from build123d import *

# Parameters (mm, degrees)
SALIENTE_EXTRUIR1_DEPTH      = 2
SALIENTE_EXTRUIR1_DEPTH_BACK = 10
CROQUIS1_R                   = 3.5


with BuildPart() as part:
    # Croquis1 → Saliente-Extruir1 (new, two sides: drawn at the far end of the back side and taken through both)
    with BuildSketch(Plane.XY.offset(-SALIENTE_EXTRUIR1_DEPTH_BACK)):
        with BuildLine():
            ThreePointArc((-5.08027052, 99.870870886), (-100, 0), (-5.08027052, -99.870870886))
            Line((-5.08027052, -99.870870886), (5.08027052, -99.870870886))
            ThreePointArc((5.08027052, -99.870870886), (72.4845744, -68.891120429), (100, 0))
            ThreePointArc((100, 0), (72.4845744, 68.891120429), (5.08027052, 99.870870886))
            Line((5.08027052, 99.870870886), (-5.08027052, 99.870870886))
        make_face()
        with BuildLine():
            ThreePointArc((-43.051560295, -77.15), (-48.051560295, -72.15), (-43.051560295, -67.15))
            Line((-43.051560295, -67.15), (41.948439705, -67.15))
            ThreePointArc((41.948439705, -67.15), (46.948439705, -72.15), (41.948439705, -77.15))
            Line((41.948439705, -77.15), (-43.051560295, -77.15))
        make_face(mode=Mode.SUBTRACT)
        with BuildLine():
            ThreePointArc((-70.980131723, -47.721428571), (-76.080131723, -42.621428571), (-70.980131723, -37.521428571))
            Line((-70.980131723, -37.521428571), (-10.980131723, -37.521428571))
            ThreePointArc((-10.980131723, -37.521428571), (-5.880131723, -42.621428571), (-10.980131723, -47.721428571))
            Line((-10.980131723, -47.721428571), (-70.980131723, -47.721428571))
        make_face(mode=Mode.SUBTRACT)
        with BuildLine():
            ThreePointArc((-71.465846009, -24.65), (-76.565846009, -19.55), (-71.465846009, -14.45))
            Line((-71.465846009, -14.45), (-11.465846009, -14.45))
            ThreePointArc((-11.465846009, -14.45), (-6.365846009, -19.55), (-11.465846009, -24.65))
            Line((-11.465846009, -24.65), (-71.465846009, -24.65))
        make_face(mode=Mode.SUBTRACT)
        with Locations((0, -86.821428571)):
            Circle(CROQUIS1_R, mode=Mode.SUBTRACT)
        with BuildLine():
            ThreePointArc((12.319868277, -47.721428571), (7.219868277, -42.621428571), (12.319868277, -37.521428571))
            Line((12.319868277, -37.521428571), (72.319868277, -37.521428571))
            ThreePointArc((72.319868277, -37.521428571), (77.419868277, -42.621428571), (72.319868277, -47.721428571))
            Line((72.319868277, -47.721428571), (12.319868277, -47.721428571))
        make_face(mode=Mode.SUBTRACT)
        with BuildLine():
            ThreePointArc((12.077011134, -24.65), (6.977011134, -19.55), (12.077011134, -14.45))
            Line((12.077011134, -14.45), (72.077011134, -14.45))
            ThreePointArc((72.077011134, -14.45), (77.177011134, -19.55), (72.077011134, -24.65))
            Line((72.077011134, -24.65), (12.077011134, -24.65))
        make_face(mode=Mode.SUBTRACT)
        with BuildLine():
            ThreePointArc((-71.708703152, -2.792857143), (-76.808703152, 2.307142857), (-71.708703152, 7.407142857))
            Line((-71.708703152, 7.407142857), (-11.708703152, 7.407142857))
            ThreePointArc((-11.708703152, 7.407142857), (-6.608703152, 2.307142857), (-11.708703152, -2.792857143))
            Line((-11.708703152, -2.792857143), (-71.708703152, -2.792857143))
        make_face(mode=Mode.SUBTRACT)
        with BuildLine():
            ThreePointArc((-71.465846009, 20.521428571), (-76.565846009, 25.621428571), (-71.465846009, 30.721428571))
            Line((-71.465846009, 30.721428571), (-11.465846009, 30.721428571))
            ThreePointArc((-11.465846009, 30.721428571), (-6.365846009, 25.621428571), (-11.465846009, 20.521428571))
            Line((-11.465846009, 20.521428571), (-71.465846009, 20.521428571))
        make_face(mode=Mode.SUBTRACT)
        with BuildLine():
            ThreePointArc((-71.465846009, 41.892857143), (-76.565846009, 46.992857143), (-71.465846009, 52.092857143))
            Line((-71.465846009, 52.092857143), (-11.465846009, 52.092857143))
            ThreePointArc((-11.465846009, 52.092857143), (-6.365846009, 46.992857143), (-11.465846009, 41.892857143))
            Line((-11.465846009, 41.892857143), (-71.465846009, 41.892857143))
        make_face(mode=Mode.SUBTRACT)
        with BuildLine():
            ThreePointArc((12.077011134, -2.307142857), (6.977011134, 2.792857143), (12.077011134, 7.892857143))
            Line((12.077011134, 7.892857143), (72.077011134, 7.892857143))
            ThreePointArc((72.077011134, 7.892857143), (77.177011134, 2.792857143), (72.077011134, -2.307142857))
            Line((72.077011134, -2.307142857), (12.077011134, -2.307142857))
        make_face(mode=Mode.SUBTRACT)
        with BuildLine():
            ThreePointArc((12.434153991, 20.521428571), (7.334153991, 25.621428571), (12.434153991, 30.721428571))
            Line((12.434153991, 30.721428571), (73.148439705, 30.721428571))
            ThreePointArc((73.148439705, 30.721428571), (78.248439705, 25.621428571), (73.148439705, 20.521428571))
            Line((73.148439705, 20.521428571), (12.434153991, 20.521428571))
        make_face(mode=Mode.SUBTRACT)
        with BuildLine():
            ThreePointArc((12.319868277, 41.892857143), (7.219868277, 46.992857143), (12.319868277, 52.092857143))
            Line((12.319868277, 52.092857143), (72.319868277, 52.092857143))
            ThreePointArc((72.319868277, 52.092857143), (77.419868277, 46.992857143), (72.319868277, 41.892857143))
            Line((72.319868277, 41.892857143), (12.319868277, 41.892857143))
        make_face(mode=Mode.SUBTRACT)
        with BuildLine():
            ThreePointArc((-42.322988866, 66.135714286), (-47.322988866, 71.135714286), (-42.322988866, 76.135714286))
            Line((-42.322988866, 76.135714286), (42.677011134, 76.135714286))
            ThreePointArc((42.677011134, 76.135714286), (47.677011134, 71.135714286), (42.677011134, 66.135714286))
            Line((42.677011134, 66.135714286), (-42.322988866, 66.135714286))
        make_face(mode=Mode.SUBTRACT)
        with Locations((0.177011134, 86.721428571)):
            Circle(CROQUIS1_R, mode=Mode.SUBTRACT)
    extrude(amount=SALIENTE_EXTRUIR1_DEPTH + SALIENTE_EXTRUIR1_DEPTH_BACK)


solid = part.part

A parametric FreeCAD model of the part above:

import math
import FreeCAD as App
import Part
import Sketcher

V = App.Vector
Q = App.Units.Quantity

doc = App.newDocument("Part")
body = doc.addObject("PartDesign::Body", "Body")

# Sketch on XY plane
sketch1 = body.newObject("Sketcher::SketchObject", "Sketch")
sketch1.AttachmentSupport = (doc.getObject("XY_Plane"), [""])
sketch1.MapMode = "FlatFace"
sketch1.addGeometry(Part.ArcOfCircle(Part.Circle(V(0, 0, 0), V(0, 0, 1), 100), math.radians(93), math.radians(267)), False)
sketch1.addGeometry(Part.LineSegment(V(-5.1, -99.9, 0), V(5.1, -99.9, 0)), False)
sketch1.addGeometry(Part.ArcOfCircle(Part.Circle(V(0, 0, 0), V(0, 0, 1), 100), math.radians(-87), math.radians(0)), False)
sketch1.addGeometry(Part.ArcOfCircle(Part.Circle(V(0, 0, 0), V(0, 0, 1), 100), math.radians(0), math.radians(87)), False)
sketch1.addGeometry(Part.LineSegment(V(5.1, 99.9, 0), V(-5.1, 99.9, 0)), False)
sketch1.addGeometry(Part.Circle(V(0, -86.8, 0), V(0, 0, 1), 3.5), False)
sketch1.addGeometry(Part.LineSegment(V(41.9, -77.2, 0), V(-43.1, -77.2, 0)), False)
sketch1.addGeometry(Part.ArcOfCircle(Part.Circle(V(-43.1, -72.2, 0), V(0, 0, 1), 5), math.radians(90), math.radians(270)), False)
sketch1.addGeometry(Part.LineSegment(V(-43.1, -67.2, 0), V(41.9, -67.2, 0)), False)
sketch1.addGeometry(Part.ArcOfCircle(Part.Circle(V(41.9, -72.2, 0), V(0, 0, 1), 5), math.radians(-90), math.radians(90)), False)
sketch1.addGeometry(Part.LineSegment(V(-11, -47.7, 0), V(-71, -47.7, 0)), False)
sketch1.addGeometry(Part.ArcOfCircle(Part.Circle(V(-71, -42.6, 0), V(0, 0, 1), 5.1), math.radians(90), math.radians(270)), False)
sketch1.addGeometry(Part.LineSegment(V(-71, -37.5, 0), V(-11, -37.5, 0)), False)
sketch1.addGeometry(Part.ArcOfCircle(Part.Circle(V(-11, -42.6, 0), V(0, 0, 1), 5.1), math.radians(-90), math.radians(90)), False)
sketch1.addGeometry(Part.LineSegment(V(-11.5, -24.6, 0), V(-71.5, -24.6, 0)), False)
sketch1.addGeometry(Part.ArcOfCircle(Part.Circle(V(-71.5, -19.6, 0), V(0, 0, 1), 5.1), math.radians(90), math.radians(270)), False)
sketch1.addGeometry(Part.LineSegment(V(-71.5, -14.4, 0), V(-11.5, -14.4, 0)), False)
sketch1.addGeometry(Part.ArcOfCircle(Part.Circle(V(-11.5, -19.6, 0), V(0, 0, 1), 5.1), math.radians(-90), math.radians(90)), False)
sketch1.addGeometry(Part.LineSegment(V(72.3, -47.7, 0), V(12.3, -47.7, 0)), False)
sketch1.addGeometry(Part.ArcOfCircle(Part.Circle(V(12.3, -42.6, 0), V(0, 0, 1), 5.1), math.radians(90), math.radians(270)), False)
sketch1.addGeometry(Part.LineSegment(V(12.3, -37.5, 0), V(72.3, -37.5, 0)), False)
sketch1.addGeometry(Part.ArcOfCircle(Part.Circle(V(72.3, -42.6, 0), V(0, 0, 1), 5.1), math.radians(-90), math.radians(90)), False)
sketch1.addGeometry(Part.LineSegment(V(72.1, -24.6, 0), V(12.1, -24.6, 0)), False)
sketch1.addGeometry(Part.ArcOfCircle(Part.Circle(V(12.1, -19.6, 0), V(0, 0, 1), 5.1), math.radians(90), math.radians(270)), False)
sketch1.addGeometry(Part.LineSegment(V(12.1, -14.4, 0), V(72.1, -14.4, 0)), False)
sketch1.addGeometry(Part.ArcOfCircle(Part.Circle(V(72.1, -19.6, 0), V(0, 0, 1), 5.1), math.radians(-90), math.radians(90)), False)
sketch1.addGeometry(Part.LineSegment(V(-11.7, -2.8, 0), V(-71.7, -2.8, 0)), False)
sketch1.addGeometry(Part.ArcOfCircle(Part.Circle(V(-71.7, 2.3, 0), V(0, 0, 1), 5.1), math.radians(90), math.radians(270)), False)
sketch1.addGeometry(Part.LineSegment(V(-71.7, 7.4, 0), V(-11.7, 7.4, 0)), False)
sketch1.addGeometry(Part.ArcOfCircle(Part.Circle(V(-11.7, 2.3, 0), V(0, 0, 1), 5.1), math.radians(-90), math.radians(90)), False)
sketch1.addGeometry(Part.LineSegment(V(-11.5, 20.5, 0), V(-71.5, 20.5, 0)), False)
sketch1.addGeometry(Part.ArcOfCircle(Part.Circle(V(-71.5, 25.6, 0), V(0, 0, 1), 5.1), math.radians(90), math.radians(270)), False)
sketch1.addGeometry(Part.LineSegment(V(-71.5, 30.7, 0), V(-11.5, 30.7, 0)), False)
sketch1.addGeometry(Part.ArcOfCircle(Part.Circle(V(-11.5, 25.6, 0), V(0, 0, 1), 5.1), math.radians(-90), math.radians(90)), False)
sketch1.addGeometry(Part.LineSegment(V(-11.5, 41.9, 0), V(-71.5, 41.9, 0)), False)
sketch1.addGeometry(Part.ArcOfCircle(Part.Circle(V(-71.5, 47, 0), V(0, 0, 1), 5.1), math.radians(90), math.radians(270)), False)
sketch1.addGeometry(Part.LineSegment(V(-71.5, 52.1, 0), V(-11.5, 52.1, 0)), False)
sketch1.addGeometry(Part.ArcOfCircle(Part.Circle(V(-11.5, 47, 0), V(0, 0, 1), 5.1), math.radians(-90), math.radians(90)), False)
sketch1.addGeometry(Part.LineSegment(V(42.7, 66.1, 0), V(-42.3, 66.1, 0)), False)
sketch1.addGeometry(Part.ArcOfCircle(Part.Circle(V(-42.3, 71.1, 0), V(0, 0, 1), 5), math.radians(90), math.radians(270)), False)
sketch1.addGeometry(Part.LineSegment(V(-42.3, 76.1, 0), V(42.7, 76.1, 0)), False)
sketch1.addGeometry(Part.ArcOfCircle(Part.Circle(V(42.7, 71.1, 0), V(0, 0, 1), 5), math.radians(-90), math.radians(90)), False)
sketch1.addGeometry(Part.Circle(V(0.2, 86.7, 0), V(0, 0, 1), 3.5), False)
sketch1.addGeometry(Part.LineSegment(V(72.1, -2.3, 0), V(12.1, -2.3, 0)), False)
sketch1.addGeometry(Part.ArcOfCircle(Part.Circle(V(12.1, 2.8, 0), V(0, 0, 1), 5.1), math.radians(90), math.radians(270)), False)
sketch1.addGeometry(Part.LineSegment(V(12.1, 7.9, 0), V(72.1, 7.9, 0)), False)
sketch1.addGeometry(Part.ArcOfCircle(Part.Circle(V(72.1, 2.8, 0), V(0, 0, 1), 5.1), math.radians(-90), math.radians(90)), False)
sketch1.addGeometry(Part.LineSegment(V(73.1, 20.5, 0), V(12.4, 20.5, 0)), False)
sketch1.addGeometry(Part.ArcOfCircle(Part.Circle(V(12.4, 25.6, 0), V(0, 0, 1), 5.1), math.radians(90), math.radians(270)), False)
sketch1.addGeometry(Part.LineSegment(V(12.4, 30.7, 0), V(73.1, 30.7, 0)), False)
sketch1.addGeometry(Part.ArcOfCircle(Part.Circle(V(73.1, 25.6, 0), V(0, 0, 1), 5.1), math.radians(-90), math.radians(90)), False)
sketch1.addGeometry(Part.LineSegment(V(72.3, 41.9, 0), V(12.3, 41.9, 0)), False)
sketch1.addGeometry(Part.ArcOfCircle(Part.Circle(V(12.3, 47, 0), V(0, 0, 1), 5.1), math.radians(90), math.radians(270)), False)
sketch1.addGeometry(Part.LineSegment(V(12.3, 52.1, 0), V(72.3, 52.1, 0)), False)
sketch1.addGeometry(Part.ArcOfCircle(Part.Circle(V(72.3, 47, 0), V(0, 0, 1), 5.1), math.radians(-90), math.radians(90)), False)
sketch1.addConstraint(Sketcher.Constraint("Coincident", 0, 2, 1, 1))
sketch1.addConstraint(Sketcher.Constraint("Coincident", 1, 2, 2, 1))
sketch1.addConstraint(Sketcher.Constraint("Tangent", 2, 2, 3, 1))
sketch1.addConstraint(Sketcher.Constraint("Coincident", 3, 2, 4, 1))
sketch1.addConstraint(Sketcher.Constraint("Coincident", 4, 2, 0, 1))
sketch1.addConstraint(Sketcher.Constraint("Tangent", 6, 2, 7, 2))
sketch1.addConstraint(Sketcher.Constraint("Tangent", 7, 1, 8, 1))
sketch1.addConstraint(Sketcher.Constraint("Tangent", 8, 2, 9, 2))
sketch1.addConstraint(Sketcher.Constraint("Tangent", 9, 1, 6, 1))
sketch1.addConstraint(Sketcher.Constraint("Tangent", 10, 2, 11, 2))
sketch1.addConstraint(Sketcher.Constraint("Tangent", 11, 1, 12, 1))
sketch1.addConstraint(Sketcher.Constraint("Tangent", 12, 2, 13, 2))
sketch1.addConstraint(Sketcher.Constraint("Tangent", 13, 1, 10, 1))
sketch1.addConstraint(Sketcher.Constraint("Tangent", 14, 2, 15, 2))
sketch1.addConstraint(Sketcher.Constraint("Tangent", 15, 1, 16, 1))
sketch1.addConstraint(Sketcher.Constraint("Tangent", 16, 2, 17, 2))
sketch1.addConstraint(Sketcher.Constraint("Tangent", 17, 1, 14, 1))
sketch1.addConstraint(Sketcher.Constraint("Tangent", 18, 2, 19, 2))
sketch1.addConstraint(Sketcher.Constraint("Tangent", 19, 1, 20, 1))
sketch1.addConstraint(Sketcher.Constraint("Tangent", 20, 2, 21, 2))
sketch1.addConstraint(Sketcher.Constraint("Tangent", 21, 1, 18, 1))
sketch1.addConstraint(Sketcher.Constraint("Tangent", 22, 2, 23, 2))
sketch1.addConstraint(Sketcher.Constraint("Tangent", 23, 1, 24, 1))
sketch1.addConstraint(Sketcher.Constraint("Tangent", 24, 2, 25, 2))
sketch1.addConstraint(Sketcher.Constraint("Tangent", 25, 1, 22, 1))
sketch1.addConstraint(Sketcher.Constraint("Tangent", 26, 2, 27, 2))
sketch1.addConstraint(Sketcher.Constraint("Tangent", 27, 1, 28, 1))
sketch1.addConstraint(Sketcher.Constraint("Tangent", 28, 2, 29, 2))
sketch1.addConstraint(Sketcher.Constraint("Tangent", 29, 1, 26, 1))
sketch1.addConstraint(Sketcher.Constraint("Tangent", 30, 2, 31, 2))
sketch1.addConstraint(Sketcher.Constraint("Tangent", 31, 1, 32, 1))
sketch1.addConstraint(Sketcher.Constraint("Tangent", 32, 2, 33, 2))
sketch1.addConstraint(Sketcher.Constraint("Tangent", 33, 1, 30, 1))
sketch1.addConstraint(Sketcher.Constraint("Tangent", 34, 2, 35, 2))
sketch1.addConstraint(Sketcher.Constraint("Tangent", 35, 1, 36, 1))
sketch1.addConstraint(Sketcher.Constraint("Tangent", 36, 2, 37, 2))
sketch1.addConstraint(Sketcher.Constraint("Tangent", 37, 1, 34, 1))
sketch1.addConstraint(Sketcher.Constraint("Tangent", 38, 2, 39, 2))
sketch1.addConstraint(Sketcher.Constraint("Tangent", 39, 1, 40, 1))
sketch1.addConstraint(Sketcher.Constraint("Tangent", 40, 2, 41, 2))
sketch1.addConstraint(Sketcher.Constraint("Tangent", 41, 1, 38, 1))
sketch1.addConstraint(Sketcher.Constraint("Tangent", 43, 2, 44, 2))
sketch1.addConstraint(Sketcher.Constraint("Tangent", 44, 1, 45, 1))
sketch1.addConstraint(Sketcher.Constraint("Tangent", 45, 2, 46, 2))
sketch1.addConstraint(Sketcher.Constraint("Tangent", 46, 1, 43, 1))
sketch1.addConstraint(Sketcher.Constraint("Tangent", 47, 2, 48, 2))
sketch1.addConstraint(Sketcher.Constraint("Tangent", 48, 1, 49, 1))
sketch1.addConstraint(Sketcher.Constraint("Tangent", 49, 2, 50, 2))
sketch1.addConstraint(Sketcher.Constraint("Tangent", 50, 1, 47, 1))
sketch1.addConstraint(Sketcher.Constraint("Tangent", 51, 2, 52, 2))
sketch1.addConstraint(Sketcher.Constraint("Tangent", 52, 1, 53, 1))
sketch1.addConstraint(Sketcher.Constraint("Tangent", 53, 2, 54, 2))
sketch1.addConstraint(Sketcher.Constraint("Tangent", 54, 1, 51, 1))
sketch1.addConstraint(Sketcher.Constraint("Horizontal", 1))
sketch1.addConstraint(Sketcher.Constraint("Horizontal", 4))
sketch1.addConstraint(Sketcher.Constraint("Horizontal", 6))
sketch1.addConstraint(Sketcher.Constraint("Horizontal", 8))
sketch1.addConstraint(Sketcher.Constraint("Horizontal", 10))
sketch1.addConstraint(Sketcher.Constraint("Horizontal", 12))
sketch1.addConstraint(Sketcher.Constraint("Horizontal", 14))
sketch1.addConstraint(Sketcher.Constraint("Horizontal", 16))
sketch1.addConstraint(Sketcher.Constraint("Horizontal", 18))
sketch1.addConstraint(Sketcher.Constraint("Horizontal", 20))
sketch1.addConstraint(Sketcher.Constraint("Horizontal", 22))
sketch1.addConstraint(Sketcher.Constraint("Horizontal", 24))
sketch1.addConstraint(Sketcher.Constraint("Horizontal", 26))
sketch1.addConstraint(Sketcher.Constraint("Horizontal", 28))
sketch1.addConstraint(Sketcher.Constraint("Horizontal", 30))
sketch1.addConstraint(Sketcher.Constraint("Horizontal", 32))
sketch1.addConstraint(Sketcher.Constraint("Horizontal", 34))
sketch1.addConstraint(Sketcher.Constraint("Horizontal", 36))
sketch1.addConstraint(Sketcher.Constraint("Horizontal", 38))
sketch1.addConstraint(Sketcher.Constraint("Horizontal", 40))
sketch1.addConstraint(Sketcher.Constraint("Horizontal", 43))
sketch1.addConstraint(Sketcher.Constraint("Horizontal", 45))
sketch1.addConstraint(Sketcher.Constraint("Horizontal", 47))
sketch1.addConstraint(Sketcher.Constraint("Horizontal", 49))
sketch1.addConstraint(Sketcher.Constraint("Horizontal", 51))
sketch1.addConstraint(Sketcher.Constraint("Horizontal", 53))
sketch1.addConstraint(Sketcher.Constraint("Coincident", 0, 3, -1, 1))
sketch1.addConstraint(Sketcher.Constraint("Coincident", 2, 3, -1, 1))
sketch1.addConstraint(Sketcher.Constraint("Equal", 0, 2))
sketch1.addConstraint(Sketcher.Constraint("Equal", 2, 3))
sketch1.addConstraint(Sketcher.Constraint("Equal", 13, 15))
sketch1.addConstraint(Sketcher.Constraint("Equal", 17, 19))
sketch1.addConstraint(Sketcher.Constraint("Equal", 21, 23))
sketch1.addConstraint(Sketcher.Constraint("Equal", 25, 27))
sketch1.addConstraint(Sketcher.Constraint("Equal", 29, 31))
sketch1.addConstraint(Sketcher.Constraint("Equal", 33, 35))
sketch1.addConstraint(Sketcher.Constraint("Equal", 9, 39))
sketch1.addConstraint(Sketcher.Constraint("Equal", 5, 42))
sketch1.addConstraint(Sketcher.Constraint("Equal", 37, 44))
sketch1.addConstraint(Sketcher.Constraint("Equal", 46, 48))
sketch1.addConstraint(Sketcher.Constraint("Equal", 50, 52))
sketch1.addConstraint(Sketcher.Constraint("PointOnObject", 5, 3, -2))
sketch1.addConstraint(Sketcher.Constraint("PointOnObject", 2, 2, -1))
sketch1.addConstraint(Sketcher.Constraint("Horizontal", 13, 3, 19, 3))
sketch1.addConstraint(Sketcher.Constraint("Horizontal", 17, 3, 23, 3))
sketch1.addConstraint(Sketcher.Constraint("Horizontal", 33, 3, 48, 3))
sketch1.addConstraint(Sketcher.Constraint("Horizontal", 37, 3, 52, 3))
sketch1.addConstraint(Sketcher.Constraint("Vertical", 15, 3, 31, 3))
sketch1.addConstraint(Sketcher.Constraint("Vertical", 17, 3, 33, 3))
sketch1.addConstraint(Sketcher.Constraint("Vertical", 31, 3, 35, 3))
sketch1.addConstraint(Sketcher.Constraint("Vertical", 33, 3, 37, 3))
sketch1.addConstraint(Sketcher.Constraint("Vertical", 23, 3, 44, 3))
sketch1.addConstraint(Sketcher.Constraint("Vertical", 25, 3, 46, 3))
sketch1.addConstraint(Sketcher.Constraint("Vertical", 19, 3, 52, 3))
sketch1.addConstraint(Sketcher.Constraint("Vertical", 21, 3, 54, 3))
sketch1.addConstraint(Sketcher.Constraint("Vertical", 1, 2, 3, 2))
sketch1.addConstraint(Sketcher.Constraint("Equal", 12, 14))
sketch1.addConstraint(Sketcher.Constraint("Equal", 16, 18))
sketch1.addConstraint(Sketcher.Constraint("Equal", 20, 22))
sketch1.addConstraint(Sketcher.Constraint("Equal", 24, 26))
sketch1.addConstraint(Sketcher.Constraint("Equal", 8, 38))
sketch1.addConstraint(Sketcher.Constraint("Diameter", 5, Q("7 mm")))
sketch1.addConstraint(Sketcher.Constraint("Radius", 0, Q("100 mm")))
sketch1.addConstraint(Sketcher.Constraint("Radius", 7, Q("5 mm")))
sketch1.addConstraint(Sketcher.Constraint("Radius", 11, Q("5.1 mm")))
sketch1.addConstraint(Sketcher.Constraint("DistanceX", 6, 2, 6, 1, Q("85 mm")))
sketch1.addConstraint(Sketcher.Constraint("DistanceX", 10, 2, 10, 1, Q("60 mm")))
sketch1.addConstraint(Sketcher.Constraint("DistanceY", 7, 3, -1, 1, Q("72.15 mm")))
sketch1.addConstraint(Sketcher.Constraint("DistanceY", 15, 3, -1, 1, Q("19.55 mm")))
sketch1.addConstraint(Sketcher.Constraint("DistanceX", 1, 1, 1, 2, Q("10.160541 mm")))
sketch1.addConstraint(Sketcher.Constraint("DistanceX", 47, 2, 47, 1, Q("60.714286 mm")))
sketch1.addConstraint(Sketcher.Constraint("DistanceY", 5, 3, -1, 1, Q("86.821429 mm")))
sketch1.addConstraint(Sketcher.Constraint("DistanceX", 7, 3, -1, 1, Q("43.05156 mm")))
sketch1.addConstraint(Sketcher.Constraint("DistanceX", 11, 3, -1, 1, Q("70.980132 mm")))
sketch1.addConstraint(Sketcher.Constraint("DistanceY", 11, 3, -1, 1, Q("42.621429 mm")))
sketch1.addConstraint(Sketcher.Constraint("DistanceX", -1, 1, 19, 3, Q("12.319868 mm")))
sketch1.addConstraint(Sketcher.Constraint("DistanceX", -1, 1, 23, 3, Q("12.077011 mm")))
sketch1.addConstraint(Sketcher.Constraint("DistanceY", -1, 1, 31, 3, Q("25.621429 mm")))
sketch1.addConstraint(Sketcher.Constraint("DistanceX", 39, 3, -1, 1, Q("42.322989 mm")))
sketch1.addConstraint(Sketcher.Constraint("DistanceX", -1, 1, 42, 3, Q("0.177011 mm")))
sketch1.addConstraint(Sketcher.Constraint("DistanceY", -1, 1, 42, 3, Q("86.721429 mm")))
sketch1.addConstraint(Sketcher.Constraint("DistanceX", -1, 1, 50, 3, Q("73.14844 mm")))
sketch1.addConstraint(Sketcher.Constraint("DistanceX", 15, 3, -1, 1, Q("71.465846 mm")))
sketch1.addConstraint(Sketcher.Constraint("DistanceX", 27, 3, -1, 1, Q("71.708703 mm")))
sketch1.addConstraint(Sketcher.Constraint("DistanceY", -1, 1, 27, 3, Q("2.307143 mm")))
sketch1.addConstraint(Sketcher.Constraint("DistanceY", -1, 1, 35, 3, Q("46.992857 mm")))
sketch1.addConstraint(Sketcher.Constraint("DistanceY", -1, 1, 39, 3, Q("71.135714 mm")))
sketch1.addConstraint(Sketcher.Constraint("DistanceY", -1, 1, 44, 3, Q("2.792857 mm")))
pad1 = body.newObject("PartDesign::Pad", "Pad")
pad1.Profile = sketch1
pad1.Type = "TwoLengths"
pad1.Length = 2
pad1.Length2 = 10

doc.recompute()
